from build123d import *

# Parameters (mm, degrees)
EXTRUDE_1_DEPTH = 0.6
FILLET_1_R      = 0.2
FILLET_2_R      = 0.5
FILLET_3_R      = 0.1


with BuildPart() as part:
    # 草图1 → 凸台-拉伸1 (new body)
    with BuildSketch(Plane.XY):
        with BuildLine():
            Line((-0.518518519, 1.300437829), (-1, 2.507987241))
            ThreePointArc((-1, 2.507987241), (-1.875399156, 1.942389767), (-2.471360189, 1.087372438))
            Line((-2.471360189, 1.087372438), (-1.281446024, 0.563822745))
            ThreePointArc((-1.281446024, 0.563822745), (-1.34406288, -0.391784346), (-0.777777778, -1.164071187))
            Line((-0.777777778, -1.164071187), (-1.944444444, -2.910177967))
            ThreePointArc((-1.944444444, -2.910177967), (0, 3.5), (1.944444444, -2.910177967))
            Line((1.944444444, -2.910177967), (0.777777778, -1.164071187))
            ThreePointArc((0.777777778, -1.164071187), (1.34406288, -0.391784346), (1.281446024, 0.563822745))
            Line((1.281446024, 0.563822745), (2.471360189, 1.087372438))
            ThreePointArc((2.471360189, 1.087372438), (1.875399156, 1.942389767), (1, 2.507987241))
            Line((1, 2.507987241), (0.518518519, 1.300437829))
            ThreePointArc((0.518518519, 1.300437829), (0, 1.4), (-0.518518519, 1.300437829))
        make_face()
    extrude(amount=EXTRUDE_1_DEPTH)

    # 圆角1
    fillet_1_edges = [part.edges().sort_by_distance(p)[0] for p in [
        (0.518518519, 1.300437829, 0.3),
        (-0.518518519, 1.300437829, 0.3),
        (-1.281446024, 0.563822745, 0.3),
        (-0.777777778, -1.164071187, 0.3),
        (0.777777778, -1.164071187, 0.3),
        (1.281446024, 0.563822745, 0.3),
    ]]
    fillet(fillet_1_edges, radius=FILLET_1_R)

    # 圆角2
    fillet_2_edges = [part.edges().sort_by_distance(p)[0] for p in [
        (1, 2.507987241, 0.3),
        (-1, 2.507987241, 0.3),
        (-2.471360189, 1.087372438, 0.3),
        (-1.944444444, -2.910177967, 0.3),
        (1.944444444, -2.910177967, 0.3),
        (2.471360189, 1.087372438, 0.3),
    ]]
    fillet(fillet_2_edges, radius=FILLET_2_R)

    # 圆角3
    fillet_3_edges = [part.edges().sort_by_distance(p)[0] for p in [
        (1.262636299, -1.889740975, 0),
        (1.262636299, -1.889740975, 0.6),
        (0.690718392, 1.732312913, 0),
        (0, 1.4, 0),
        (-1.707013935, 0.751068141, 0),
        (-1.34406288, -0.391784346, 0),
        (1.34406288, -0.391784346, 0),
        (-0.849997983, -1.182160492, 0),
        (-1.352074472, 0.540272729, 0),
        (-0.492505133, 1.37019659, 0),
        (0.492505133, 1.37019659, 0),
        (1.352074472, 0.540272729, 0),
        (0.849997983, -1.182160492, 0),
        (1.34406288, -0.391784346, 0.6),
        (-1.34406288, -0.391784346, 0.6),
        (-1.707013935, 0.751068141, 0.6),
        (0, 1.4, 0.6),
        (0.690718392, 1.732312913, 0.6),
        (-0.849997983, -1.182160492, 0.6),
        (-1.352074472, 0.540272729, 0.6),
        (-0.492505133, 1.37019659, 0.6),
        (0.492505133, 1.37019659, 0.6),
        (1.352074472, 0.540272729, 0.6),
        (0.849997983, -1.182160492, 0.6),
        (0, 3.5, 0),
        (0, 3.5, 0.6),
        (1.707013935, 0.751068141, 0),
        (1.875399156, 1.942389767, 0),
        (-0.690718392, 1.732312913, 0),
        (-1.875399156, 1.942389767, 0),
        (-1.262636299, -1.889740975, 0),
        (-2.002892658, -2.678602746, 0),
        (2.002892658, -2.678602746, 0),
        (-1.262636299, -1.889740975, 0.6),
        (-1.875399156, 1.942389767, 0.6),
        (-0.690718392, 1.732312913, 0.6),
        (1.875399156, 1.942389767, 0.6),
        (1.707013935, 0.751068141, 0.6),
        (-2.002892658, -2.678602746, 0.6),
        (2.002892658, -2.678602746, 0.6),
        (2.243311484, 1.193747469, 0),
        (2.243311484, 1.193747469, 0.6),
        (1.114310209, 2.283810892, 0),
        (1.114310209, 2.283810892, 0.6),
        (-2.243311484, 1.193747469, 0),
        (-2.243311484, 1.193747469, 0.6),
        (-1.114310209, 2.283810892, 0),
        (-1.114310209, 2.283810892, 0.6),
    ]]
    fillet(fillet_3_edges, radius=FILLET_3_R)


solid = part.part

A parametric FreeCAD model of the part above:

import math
import FreeCAD as App
import Part
import Sketcher
Q = App.Units.Quantity


def edges_at(feature, points):
    """Names of the edges that pass closest to the given points."""
    edges = feature.Shape.Edges
    near = lambda p: min(range(len(edges)), key=lambda i: edges[i].distToShape(Part.Vertex(*p))[0])
    return sorted({f"Edge{near(p) + 1}" for p in points})

doc = App.newDocument("Part")
body = doc.addObject("PartDesign::Body", "Body")

# Sketch on XY plane
sketch1 = body.newObject("Sketcher::SketchObject", "Sketch")
sketch1.AttachmentSupport = (doc.getObject("XY_Plane"), [""])
sketch1.MapMode = "FlatFace"
sketch1.addGeometry(Part.LineSegment(App.Vector(-1, 2.5, 0), App.Vector(-0.5, 1.3, 0)), False)
sketch1.addGeometry(Part.ArcOfCircle(Part.Circle(App.Vector(0, 0, 0), App.Vector(0, 0, 1), 1.4), math.radians(68), math.radians(112)), False)
sketch1.addGeometry(Part.LineSegment(App.Vector(0.5, 1.3, 0), App.Vector(1, 2.5, 0)), False)
sketch1.addGeometry(Part.ArcOfCircle(Part.Circle(App.Vector(0, 0, 0), App.Vector(0, 0, 1), 2.7), math.radians(24), math.radians(68)), False)
sketch1.addGeometry(Part.LineSegment(App.Vector(2.5, 1.1, 0), App.Vector(1.3, 0.6, 0)), False)
sketch1.addGeometry(Part.ArcOfCircle(Part.Circle(App.Vector(0, 0, 0), App.Vector(0, 0, 1), 1.4), math.radians(-56), math.radians(24)), False)
sketch1.addGeometry(Part.LineSegment(App.Vector(0.8, -1.2, 0), App.Vector(1.9, -2.9, 0)), False)
sketch1.addGeometry(Part.ArcOfCircle(Part.Circle(App.Vector(0, 0, 0), App.Vector(0, 0, 1), 3.5), math.radians(-56), math.radians(236)), False)
sketch1.addGeometry(Part.LineSegment(App.Vector(-1.9, -2.9, 0), App.Vector(-0.8, -1.2, 0)), False)
sketch1.addGeometry(Part.ArcOfCircle(Part.Circle(App.Vector(0, 0, 0), App.Vector(0, 0, 1), 1.4), math.radians(156), math.radians(236)), False)
sketch1.addGeometry(Part.LineSegment(App.Vector(-1.3, 0.6, 0), App.Vector(-2.5, 1.1, 0)), False)
sketch1.addGeometry(Part.ArcOfCircle(Part.Circle(App.Vector(0, 0, 0), App.Vector(0, 0, 1), 2.7), math.radians(112), math.radians(156)), False)
sketch1.addConstraint(Sketcher.Constraint("Coincident", 0, 2, 1, 2))
sketch1.addConstraint(Sketcher.Constraint("Coincident", 1, 1, 2, 1))
sketch1.addConstraint(Sketcher.Constraint("Coincident", 2, 2, 3, 2))
sketch1.addConstraint(Sketcher.Constraint("Coincident", 3, 1, 4, 1))
sketch1.addConstraint(Sketcher.Constraint("Coincident", 4, 2, 5, 2))
sketch1.addConstraint(Sketcher.Constraint("Coincident", 5, 1, 6, 1))
sketch1.addConstraint(Sketcher.Constraint("Coincident", 6, 2, 7, 1))
sketch1.addConstraint(Sketcher.Constraint("Coincident", 7, 2, 8, 1))
sketch1.addConstraint(Sketcher.Constraint("Coincident", 8, 2, 9, 2))
sketch1.addConstraint(Sketcher.Constraint("Coincident", 9, 1, 10, 1))
sketch1.addConstraint(Sketcher.Constraint("Coincident", 10, 2, 11, 2))
sketch1.addConstraint(Sketcher.Constraint("Coincident", 11, 1, 0, 1))
sketch1.addConstraint(Sketcher.Constraint("Coincident", 1, 3, -1, 1))
sketch1.addConstraint(Sketcher.Constraint("Coincident", 3, 3, -1, 1))
sketch1.addConstraint(Sketcher.Constraint("Coincident", 5, 3, -1, 1))
sketch1.addConstraint(Sketcher.Constraint("Coincident", 7, 3, -1, 1))
sketch1.addConstraint(Sketcher.Constraint("Coincident", 9, 3, -1, 1))
sketch1.addConstraint(Sketcher.Constraint("Coincident", 11, 3, -1, 1))
sketch1.addConstraint(Sketcher.Constraint("Equal", 1, 5))
sketch1.addConstraint(Sketcher.Constraint("Equal", 5, 9))
sketch1.addConstraint(Sketcher.Constraint("Equal", 3, 11))
sketch1.addConstraint(Sketcher.Constraint("Horizontal", 0, 2, 1, 1))
sketch1.addConstraint(Sketcher.Constraint("Horizontal", 6, 2, 7, 2))
sketch1.addConstraint(Sketcher.Constraint("Horizontal", 5, 1, 8, 2))
sketch1.addConstraint(Sketcher.Constraint("Horizontal", 4, 2, 9, 1))
sketch1.addConstraint(Sketcher.Constraint("Horizontal", 3, 1, 10, 2))
sketch1.addConstraint(Sketcher.Constraint("Horizontal", 2, 2, 11, 1))
sketch1.addConstraint(Sketcher.Constraint("Radius", 1, Q("1.4 mm")))
sketch1.addConstraint(Sketcher.Constraint("Radius", 3, Q("2.7 mm")))
sketch1.addConstraint(Sketcher.Constraint("Radius", 7, Q("3.5 mm")))
sketch1.addConstraint(Sketcher.Constraint("DistanceX", -1, 1, 2, 2, Q("1 mm")))
sketch1.addConstraint(Sketcher.Constraint("DistanceX", 0, 2, -1, 1, Q("0.518519 mm")))
sketch1.addConstraint(Sketcher.Constraint("DistanceX", -1, 1, 3, 1, Q("2.47136 mm")))
sketch1.addConstraint(Sketcher.Constraint("DistanceY", 5, 1, -1, 1, Q("1.164071 mm")))
sketch1.addConstraint(Sketcher.Constraint("DistanceY", 4, 2, 3, 1, Q("0.52355 mm")))
sketch1.addConstraint(Sketcher.Constraint("DistanceX", -1, 1, 6, 2, Q("1.944444 mm")))
pad1 = body.newObject("PartDesign::Pad", "Pad")
pad1.Profile = sketch1
pad1.Length = 0.6
doc.recompute()

fillet = body.newObject("PartDesign::Fillet", "Fillet")
fillet.Base = (pad1, edges_at(pad1, [
    (0.519, 1.3, 0.3),
    (-0.519, 1.3, 0.3),
    (-1.281, 0.564, 0.3),
    (-0.778, -1.164, 0.3),
    (0.778, -1.164, 0.3),
    (1.281, 0.564, 0.3),
]))
fillet.Radius = 0.2
doc.recompute()

fillet2 = body.newObject("PartDesign::Fillet", "Fillet001")
fillet2.Base = (fillet, edges_at(fillet, [
    (1, 2.508, 0.3),
    (-1, 2.508, 0.3),
    (-2.471, 1.087, 0.3),
    (-1.944, -2.91, 0.3),
    (1.944, -2.91, 0.3),
    (2.471, 1.087, 0.3),
]))
fillet2.Radius = 0.5
doc.recompute()

fillet3 = body.newObject("PartDesign::Fillet", "Fillet002")
fillet3.Base = (fillet2, edges_at(fillet2, [
    (1.263, -1.89, 0),
    (1.263, -1.89, 0.6),
    (0.691, 1.732, 0),
    (0, 1.4, 0),
    (-1.707, 0.751, 0),
    (-1.344, -0.392, 0),
    (1.344, -0.392, 0),
    (-0.85, -1.182, 0),
    (-1.352, 0.54, 0),
    (-0.493, 1.37, 0),
    (0.493, 1.37, 0),
    (1.352, 0.54, 0),
    (0.85, -1.182, 0),
    (1.344, -0.392, 0.6),
    (-1.344, -0.392, 0.6),
    (-1.707, 0.751, 0.6),
    (0, 1.4, 0.6),
    (0.691, 1.732, 0.6),
    (-0.85, -1.182, 0.6),
    (-1.352, 0.54, 0.6),
    (-0.493, 1.37, 0.6),
    (0.493, 1.37, 0.6),
    (1.352, 0.54, 0.6),
    (0.85, -1.182, 0.6),
    (0, 3.5, 0),
    (0, 3.5, 0.6),
    (1.707, 0.751, 0),
    (1.875, 1.942, 0),
    (-0.691, 1.732, 0),
    (-1.875, 1.942, 0),
    (-1.263, -1.89, 0),
    (-2.003, -2.679, 0),
    (2.003, -2.679, 0),
    (-1.263, -1.89, 0.6),
    (-1.875, 1.942, 0.6),
    (-0.691, 1.732, 0.6),
    (1.875, 1.942, 0.6),
    (1.707, 0.751, 0.6),
    (-2.003, -2.679, 0.6),
    (2.003, -2.679, 0.6),
    (2.243, 1.194, 0),
    (2.243, 1.194, 0.6),
    (1.114, 2.284, 0),
    (1.114, 2.284, 0.6),
    (-2.243, 1.194, 0),
    (-2.243, 1.194, 0.6),
    (-1.114, 2.284, 0),
    (-1.114, 2.284, 0.6),
]))
fillet3.Radius = 0.1

doc.recompute()
